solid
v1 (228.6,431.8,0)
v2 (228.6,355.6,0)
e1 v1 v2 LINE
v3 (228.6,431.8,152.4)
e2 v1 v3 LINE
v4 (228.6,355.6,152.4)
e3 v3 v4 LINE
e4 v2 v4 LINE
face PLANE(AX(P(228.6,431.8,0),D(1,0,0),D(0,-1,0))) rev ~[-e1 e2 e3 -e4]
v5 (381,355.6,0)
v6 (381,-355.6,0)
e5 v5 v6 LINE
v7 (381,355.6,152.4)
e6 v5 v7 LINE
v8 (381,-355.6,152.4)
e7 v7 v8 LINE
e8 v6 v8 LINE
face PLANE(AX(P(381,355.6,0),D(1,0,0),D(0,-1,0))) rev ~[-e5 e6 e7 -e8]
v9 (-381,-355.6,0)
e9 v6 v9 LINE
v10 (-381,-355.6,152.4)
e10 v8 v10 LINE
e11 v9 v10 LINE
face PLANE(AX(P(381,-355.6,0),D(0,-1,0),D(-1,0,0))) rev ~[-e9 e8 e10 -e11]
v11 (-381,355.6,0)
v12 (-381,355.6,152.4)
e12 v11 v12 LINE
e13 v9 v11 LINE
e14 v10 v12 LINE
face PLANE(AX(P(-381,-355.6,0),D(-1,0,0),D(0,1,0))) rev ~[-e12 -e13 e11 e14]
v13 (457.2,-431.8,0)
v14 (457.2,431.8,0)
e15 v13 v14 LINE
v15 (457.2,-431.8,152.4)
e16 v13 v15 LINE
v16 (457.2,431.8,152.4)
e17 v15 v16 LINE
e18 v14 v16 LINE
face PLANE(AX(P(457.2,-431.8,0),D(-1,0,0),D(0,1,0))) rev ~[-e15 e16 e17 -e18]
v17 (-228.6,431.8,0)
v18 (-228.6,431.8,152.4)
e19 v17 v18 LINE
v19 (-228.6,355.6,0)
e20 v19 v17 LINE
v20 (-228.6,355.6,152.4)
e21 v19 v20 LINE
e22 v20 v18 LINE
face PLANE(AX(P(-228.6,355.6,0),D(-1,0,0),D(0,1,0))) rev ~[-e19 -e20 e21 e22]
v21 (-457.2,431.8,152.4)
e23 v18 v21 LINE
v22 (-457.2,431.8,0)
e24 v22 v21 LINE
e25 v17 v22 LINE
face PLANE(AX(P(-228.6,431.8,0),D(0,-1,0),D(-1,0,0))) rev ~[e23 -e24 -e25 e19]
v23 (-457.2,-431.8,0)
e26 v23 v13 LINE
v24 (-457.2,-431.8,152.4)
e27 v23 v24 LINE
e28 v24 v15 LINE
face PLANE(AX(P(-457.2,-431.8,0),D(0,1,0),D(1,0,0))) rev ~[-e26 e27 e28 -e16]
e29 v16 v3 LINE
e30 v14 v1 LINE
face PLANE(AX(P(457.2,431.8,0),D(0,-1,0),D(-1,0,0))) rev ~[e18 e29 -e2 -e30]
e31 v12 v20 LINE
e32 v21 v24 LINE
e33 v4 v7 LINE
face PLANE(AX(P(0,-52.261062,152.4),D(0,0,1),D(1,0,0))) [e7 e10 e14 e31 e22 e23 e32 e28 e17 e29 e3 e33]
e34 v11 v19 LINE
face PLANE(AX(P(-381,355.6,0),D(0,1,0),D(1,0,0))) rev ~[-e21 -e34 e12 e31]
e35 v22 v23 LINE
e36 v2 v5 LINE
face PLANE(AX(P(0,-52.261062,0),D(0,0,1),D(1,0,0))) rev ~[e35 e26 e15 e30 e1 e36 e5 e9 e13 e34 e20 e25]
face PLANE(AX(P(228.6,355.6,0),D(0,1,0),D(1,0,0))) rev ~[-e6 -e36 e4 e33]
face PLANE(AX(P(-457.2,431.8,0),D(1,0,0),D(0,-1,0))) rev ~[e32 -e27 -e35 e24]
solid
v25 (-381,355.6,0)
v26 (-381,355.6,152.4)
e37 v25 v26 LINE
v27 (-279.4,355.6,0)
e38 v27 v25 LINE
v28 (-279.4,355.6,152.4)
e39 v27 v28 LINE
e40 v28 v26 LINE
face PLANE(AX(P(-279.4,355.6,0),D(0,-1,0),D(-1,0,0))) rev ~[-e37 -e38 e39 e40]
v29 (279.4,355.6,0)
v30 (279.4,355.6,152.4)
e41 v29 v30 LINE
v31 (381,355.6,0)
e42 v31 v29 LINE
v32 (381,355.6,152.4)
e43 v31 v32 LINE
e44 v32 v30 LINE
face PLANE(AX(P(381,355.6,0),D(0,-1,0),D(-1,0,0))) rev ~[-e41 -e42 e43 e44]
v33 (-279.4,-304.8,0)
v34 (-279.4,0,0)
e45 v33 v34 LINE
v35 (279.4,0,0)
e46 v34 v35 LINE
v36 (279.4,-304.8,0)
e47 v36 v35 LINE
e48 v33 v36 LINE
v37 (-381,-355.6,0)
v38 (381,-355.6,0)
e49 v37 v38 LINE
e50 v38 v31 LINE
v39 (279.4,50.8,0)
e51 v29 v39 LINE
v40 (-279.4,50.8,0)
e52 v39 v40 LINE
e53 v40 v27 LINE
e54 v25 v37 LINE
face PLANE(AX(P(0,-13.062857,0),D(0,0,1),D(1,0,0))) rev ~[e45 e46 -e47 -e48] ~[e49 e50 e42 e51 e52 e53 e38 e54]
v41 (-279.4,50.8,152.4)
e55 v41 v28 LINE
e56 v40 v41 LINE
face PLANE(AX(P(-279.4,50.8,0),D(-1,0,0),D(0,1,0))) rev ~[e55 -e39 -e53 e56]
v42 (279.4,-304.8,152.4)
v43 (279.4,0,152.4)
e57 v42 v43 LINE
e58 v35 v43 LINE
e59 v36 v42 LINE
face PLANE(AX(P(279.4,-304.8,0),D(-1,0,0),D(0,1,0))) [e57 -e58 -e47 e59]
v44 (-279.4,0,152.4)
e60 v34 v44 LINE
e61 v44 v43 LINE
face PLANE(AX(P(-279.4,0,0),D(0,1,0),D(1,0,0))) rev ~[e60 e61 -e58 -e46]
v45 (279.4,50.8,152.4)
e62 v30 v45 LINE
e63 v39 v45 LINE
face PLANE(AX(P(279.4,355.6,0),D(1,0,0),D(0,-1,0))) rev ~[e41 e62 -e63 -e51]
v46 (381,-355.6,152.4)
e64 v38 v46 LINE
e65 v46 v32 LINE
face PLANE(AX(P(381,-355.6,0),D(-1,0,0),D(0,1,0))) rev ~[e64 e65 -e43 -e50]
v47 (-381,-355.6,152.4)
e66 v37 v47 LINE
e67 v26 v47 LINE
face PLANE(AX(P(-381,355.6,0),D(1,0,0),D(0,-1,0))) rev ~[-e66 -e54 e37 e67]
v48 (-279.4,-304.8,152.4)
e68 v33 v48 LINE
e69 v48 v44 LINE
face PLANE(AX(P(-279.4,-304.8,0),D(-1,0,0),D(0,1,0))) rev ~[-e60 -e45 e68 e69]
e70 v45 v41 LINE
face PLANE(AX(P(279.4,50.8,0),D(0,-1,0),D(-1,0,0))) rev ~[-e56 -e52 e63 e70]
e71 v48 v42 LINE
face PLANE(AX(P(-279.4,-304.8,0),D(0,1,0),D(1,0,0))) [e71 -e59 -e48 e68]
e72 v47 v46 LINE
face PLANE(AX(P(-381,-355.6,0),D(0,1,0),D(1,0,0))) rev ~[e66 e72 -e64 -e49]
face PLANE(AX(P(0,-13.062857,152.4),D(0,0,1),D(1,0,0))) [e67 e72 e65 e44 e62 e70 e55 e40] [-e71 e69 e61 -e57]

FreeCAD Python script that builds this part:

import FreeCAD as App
import Part
import Sketcher
Q = App.Units.Quantity

doc = App.newDocument("Part")
body = doc.addObject("PartDesign::Body", "Body")

# Sketch on XY plane
sketch1 = doc.addObject("Sketcher::SketchObject", "Sketch")
body.addObject(sketch1)
sketch1.AttachmentSupport = (doc.XY_Plane, [""])
sketch1.MapMode = "FlatFace"
sketch1.addGeometry([
    Part.LineSegment(App.Vector(229, 356, 0), App.Vector(381, 356, 0)),  # 0
    Part.LineSegment(App.Vector(381, 356, 0), App.Vector(381, -356, 0)),  # 1
    Part.LineSegment(App.Vector(381, -356, 0), App.Vector(-381, -356, 0)),  # 2
    Part.LineSegment(App.Vector(-381, -356, 0), App.Vector(-381, 356, 0)),  # 3
    Part.LineSegment(App.Vector(-381, 356, 0), App.Vector(-229, 356, 0)),  # 4
    Part.LineSegment(App.Vector(-229, 356, 0), App.Vector(-229, 432, 0)),  # 5
    Part.LineSegment(App.Vector(-229, 432, 0), App.Vector(-457, 432, 0)),  # 6
    Part.LineSegment(App.Vector(-457, 432, 0), App.Vector(-457, -432, 0)),  # 7
    Part.LineSegment(App.Vector(-457, -432, 0), App.Vector(457, -432, 0)),  # 8
    Part.LineSegment(App.Vector(457, -432, 0), App.Vector(457, 432, 0)),  # 9
    Part.LineSegment(App.Vector(457, 432, 0), App.Vector(229, 432, 0)),  # 10
    Part.LineSegment(App.Vector(229, 432, 0), App.Vector(229, 356, 0)),  # 11
], False)
sketch1.addConstraint([
    Sketcher.Constraint("Coincident", 0, 2, 1, 1),
    Sketcher.Constraint("Coincident", 1, 2, 2, 1),
    Sketcher.Constraint("Coincident", 2, 2, 3, 1),
    Sketcher.Constraint("Coincident", 3, 2, 4, 1),
    Sketcher.Constraint("Coincident", 4, 2, 5, 1),
    Sketcher.Constraint("Coincident", 5, 2, 6, 1),
    Sketcher.Constraint("Coincident", 6, 2, 7, 1),
    Sketcher.Constraint("Coincident", 7, 2, 8, 1),
    Sketcher.Constraint("Coincident", 8, 2, 9, 1),
    Sketcher.Constraint("Coincident", 9, 2, 10, 1),
    Sketcher.Constraint("Coincident", 10, 2, 11, 1),
    Sketcher.Constraint("Coincident", 11, 2, 0, 1),
    Sketcher.Constraint("Horizontal", 0),
    Sketcher.Constraint("Vertical", 1),
    Sketcher.Constraint("Horizontal", 2),
    Sketcher.Constraint("Vertical", 3),
    Sketcher.Constraint("Horizontal", 4),
    Sketcher.Constraint("Vertical", 5),
    Sketcher.Constraint("Horizontal", 6),
    Sketcher.Constraint("Vertical", 7),
    Sketcher.Constraint("Horizontal", 8),
    Sketcher.Constraint("Vertical", 9),
    Sketcher.Constraint("Horizontal", 10),
    Sketcher.Constraint("Vertical", 11),
    Sketcher.Constraint("Symmetric", 0, 2, 2, 2, -1, 1),
    Sketcher.Constraint("Symmetric", 6, 2, 8, 2, -1, 1),
    Sketcher.Constraint("Symmetric", 5, 2, 10, 2, -2),
    Sketcher.Constraint("Horizontal", 0, 2, 3, 2),
    Sketcher.Constraint("DistanceX", 0, 1, 0, 2, Q("6 in")),
    Sketcher.Constraint("DistanceX", 2, 2, 2, 1, Q("30 in")),
    Sketcher.Constraint("DistanceX", 6, 2, 6, 1, Q("9 in")),
    Sketcher.Constraint("DistanceY", 1, 2, 1, 1, Q("28 in")),
    Sketcher.Constraint("DistanceY", 5, 1, 5, 2, Q("3 in")),
])
pad1 = doc.addObject("PartDesign::Pad", "Pad")
body.addObject(pad1)
pad1.Profile = sketch1
pad1.Length = Q("6 in")
body2 = doc.addObject("PartDesign::Body", "Body001")

# Sketch on XY plane
sketch2 = doc.addObject("Sketcher::SketchObject", "Sketch001")
body2.addObject(sketch2)
sketch2.AttachmentSupport = (doc.getObject("XY_Plane001"), [""])
sketch2.MapMode = "FlatFace"
sketch2.addGeometry([
    Part.LineSegment(App.Vector(-279, 356, 0), App.Vector(-381, 356, 0)),  # 0
    Part.LineSegment(App.Vector(-381, 356, 0), App.Vector(-381, -356, 0)),  # 1
    Part.LineSegment(App.Vector(-381, -356, 0), App.Vector(381, -356, 0)),  # 2
    Part.LineSegment(App.Vector(381, -356, 0), App.Vector(381, 356, 0)),  # 3
    Part.LineSegment(App.Vector(381, 356, 0), App.Vector(279, 356, 0)),  # 4
    Part.LineSegment(App.Vector(279, 356, 0), App.Vector(279, 51, 0)),  # 5
    Part.LineSegment(App.Vector(279, 51, 0), App.Vector(-279, 51, 0)),  # 6
    Part.LineSegment(App.Vector(-279, 51, 0), App.Vector(-279, 356, 0)),  # 7
    Part.LineSegment(App.Vector(279, -305, 0), App.Vector(-279, -305, 0)),  # 8
    Part.LineSegment(App.Vector(-279, -305, 0), App.Vector(-279, 0, 0)),  # 9
    Part.LineSegment(App.Vector(-279, 0, 0), App.Vector(279, 0, 0)),  # 10
    Part.LineSegment(App.Vector(279, 0, 0), App.Vector(279, -305, 0)),  # 11
], False)
sketch2.addConstraint([
    Sketcher.Constraint("Coincident", 0, 2, 1, 1),
    Sketcher.Constraint("Coincident", 1, 2, 2, 1),
    Sketcher.Constraint("Coincident", 2, 2, 3, 1),
    Sketcher.Constraint("Coincident", 3, 2, 4, 1),
    Sketcher.Constraint("Coincident", 4, 2, 5, 1),
    Sketcher.Constraint("Coincident", 5, 2, 6, 1),
    Sketcher.Constraint("Coincident", 6, 2, 7, 1),
    Sketcher.Constraint("Coincident", 7, 2, 0, 1),
    Sketcher.Constraint("Coincident", 8, 2, 9, 1),
    Sketcher.Constraint("Coincident", 9, 2, 10, 1),
    Sketcher.Constraint("Coincident", 10, 2, 11, 1),
    Sketcher.Constraint("Coincident", 11, 2, 8, 1),
    Sketcher.Constraint("Horizontal", 0),
    Sketcher.Constraint("Vertical", 1),
    Sketcher.Constraint("Horizontal", 2),
    Sketcher.Constraint("Vertical", 3),
    Sketcher.Constraint("Horizontal", 4),
    Sketcher.Constraint("Vertical", 5),
    Sketcher.Constraint("Horizontal", 6),
    Sketcher.Constraint("Vertical", 7),
    Sketcher.Constraint("Horizontal", 8),
    Sketcher.Constraint("Vertical", 9),
    Sketcher.Constraint("Horizontal", 10),
    Sketcher.Constraint("Vertical", 11),
    Sketcher.Constraint("Symmetric", 0, 2, 2, 2, -1, 1),
    Sketcher.Constraint("Symmetric", 9, 2, 10, 2, -1, 1),
    Sketcher.Constraint("Symmetric", 4, 2, 7, 2, -2),
    Sketcher.Constraint("Vertical", 7, 2, 8, 2),
    Sketcher.Constraint("Equal", 7, 9),
    Sketcher.Constraint("DistanceX", 0, 2, 0, 1, Q("4 in")),
    Sketcher.Constraint("DistanceX", 2, 1, 2, 2, Q("30 in")),
    Sketcher.Constraint("DistanceY", 1, 2, 1, 1, Q("28 in")),
    Sketcher.Constraint("DistanceY", 5, 2, 5, 1, Q("12 in")),
])
pad2 = doc.addObject("PartDesign::Pad", "Pad001")
body2.addObject(pad2)
pad2.Profile = sketch2
pad2.Length = Q("6 in")

doc.recompute()
